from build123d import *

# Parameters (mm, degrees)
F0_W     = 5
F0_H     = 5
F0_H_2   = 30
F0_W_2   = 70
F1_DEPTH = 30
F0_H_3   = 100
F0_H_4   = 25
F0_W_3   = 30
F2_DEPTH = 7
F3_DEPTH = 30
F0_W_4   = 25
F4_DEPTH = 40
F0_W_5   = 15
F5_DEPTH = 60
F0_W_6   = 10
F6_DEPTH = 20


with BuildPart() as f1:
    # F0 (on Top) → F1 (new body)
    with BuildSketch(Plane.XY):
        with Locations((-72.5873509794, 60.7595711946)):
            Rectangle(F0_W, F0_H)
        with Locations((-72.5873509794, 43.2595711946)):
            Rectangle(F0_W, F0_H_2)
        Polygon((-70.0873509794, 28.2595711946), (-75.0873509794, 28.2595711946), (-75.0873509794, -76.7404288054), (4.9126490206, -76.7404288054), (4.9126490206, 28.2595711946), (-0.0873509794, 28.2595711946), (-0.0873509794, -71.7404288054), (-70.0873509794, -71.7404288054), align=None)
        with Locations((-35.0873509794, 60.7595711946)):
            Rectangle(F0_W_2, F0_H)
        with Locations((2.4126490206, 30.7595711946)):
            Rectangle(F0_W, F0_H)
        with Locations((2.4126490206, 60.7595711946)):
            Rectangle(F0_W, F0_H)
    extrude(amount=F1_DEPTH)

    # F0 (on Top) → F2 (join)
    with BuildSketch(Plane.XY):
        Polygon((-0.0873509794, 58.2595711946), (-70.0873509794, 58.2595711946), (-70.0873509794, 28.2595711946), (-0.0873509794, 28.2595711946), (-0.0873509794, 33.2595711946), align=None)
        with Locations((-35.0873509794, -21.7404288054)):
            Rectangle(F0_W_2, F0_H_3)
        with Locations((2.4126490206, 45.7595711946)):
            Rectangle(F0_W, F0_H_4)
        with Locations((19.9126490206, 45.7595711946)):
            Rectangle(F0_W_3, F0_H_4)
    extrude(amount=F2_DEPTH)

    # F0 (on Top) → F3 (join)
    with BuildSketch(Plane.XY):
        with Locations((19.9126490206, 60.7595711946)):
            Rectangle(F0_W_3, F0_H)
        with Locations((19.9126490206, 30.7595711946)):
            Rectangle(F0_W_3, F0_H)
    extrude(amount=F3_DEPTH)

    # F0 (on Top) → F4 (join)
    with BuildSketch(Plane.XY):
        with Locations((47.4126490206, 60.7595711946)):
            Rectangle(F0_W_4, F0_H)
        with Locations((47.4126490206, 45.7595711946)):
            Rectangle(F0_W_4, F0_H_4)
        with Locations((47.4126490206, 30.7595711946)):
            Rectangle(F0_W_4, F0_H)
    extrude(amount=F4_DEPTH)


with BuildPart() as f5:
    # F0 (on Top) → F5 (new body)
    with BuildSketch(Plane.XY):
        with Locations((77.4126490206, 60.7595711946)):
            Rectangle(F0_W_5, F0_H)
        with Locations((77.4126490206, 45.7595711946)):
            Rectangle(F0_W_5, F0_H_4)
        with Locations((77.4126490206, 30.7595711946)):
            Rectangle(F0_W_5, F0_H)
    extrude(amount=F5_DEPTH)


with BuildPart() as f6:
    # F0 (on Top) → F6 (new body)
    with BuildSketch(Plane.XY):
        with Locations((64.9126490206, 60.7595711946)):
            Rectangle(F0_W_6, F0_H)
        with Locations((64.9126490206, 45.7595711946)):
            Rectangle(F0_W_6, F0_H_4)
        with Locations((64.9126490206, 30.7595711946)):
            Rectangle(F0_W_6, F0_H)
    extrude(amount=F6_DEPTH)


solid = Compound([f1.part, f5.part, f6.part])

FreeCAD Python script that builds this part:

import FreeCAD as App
import Part
import Sketcher
from FreeCAD import Vector
Q = App.Units.Quantity

doc = App.newDocument("Part")
params = doc.addObject("Spreadsheet::Sheet", "Params")
for row, (alias, value) in enumerate([
    ("sketch1_width", "80 mm"),
    ("sketch1_width2", "5 mm"),
    ("sketch1_width3", "70 mm"),
    ("sketch1_height", "140 mm"),
    ("sketch1_height2", "110 mm"),
    ("pad1_length", "30 mm"),
    ("sketch2_width", "70 mm"),
    ("sketch2_width2", "35 mm"),
    ("sketch2_height", "130 mm"),
    ("pad2_length", "7 mm"),
    ("sketch3_width", "30 mm"),
    ("sketch3_height", "5 mm"),
    ("pad3_length", "30 mm"),
    ("sketch4_width", "25 mm"),
    ("sketch4_height", "35 mm"),
    ("pad4_length", "40 mm"),
    ("sketch5_width", "15 mm"),
    ("sketch5_height", "35 mm"),
    ("pad5_length", "60 mm"),
    ("sketch6_width", "10 mm"),
    ("sketch6_height", "35 mm"),
    ("pad6_length", "20 mm"),
], start=1):
    params.set(f"A{row}", alias)
    params.set(f"B{row}", "=" + value)
    params.setAlias(f"B{row}", alias)

body = doc.addObject("PartDesign::Body", "Body")

# Sketch on XY plane
sketch1 = body.newObject("Sketcher::SketchObject", "Sketch")
sketch1.AttachmentSupport = (doc.getObject("XY_Plane"), [""])
sketch1.MapMode = "FlatFace"
sketch1.addGeometry([
    Part.LineSegment(Vector(-75, 63, 0), Vector(-75, -77, 0)),  # 0
    Part.LineSegment(Vector(-75, -77, 0), Vector(5, -77, 0)),  # 1
    Part.LineSegment(Vector(5, -77, 0), Vector(5, 33, 0)),  # 2
    Part.LineSegment(Vector(5, 33, 0), Vector(0, 33, 0)),  # 3
    Part.LineSegment(Vector(0, 33, 0), Vector(0, -72, 0)),  # 4
    Part.LineSegment(Vector(0, -72, 0), Vector(-70, -72, 0)),  # 5
    Part.LineSegment(Vector(-70, -72, 0), Vector(-70, 58, 0)),  # 6
    Part.LineSegment(Vector(-70, 58, 0), Vector(5, 58, 0)),  # 7
    Part.LineSegment(Vector(5, 58, 0), Vector(5, 63, 0)),  # 8
    Part.LineSegment(Vector(5, 63, 0), Vector(-75, 63, 0)),  # 9
], False)
sketch1.addConstraint([
    Sketcher.Constraint("Coincident", 0, 2, 1, 1),
    Sketcher.Constraint("Coincident", 1, 2, 2, 1),
    Sketcher.Constraint("Coincident", 2, 2, 3, 1),
    Sketcher.Constraint("Coincident", 3, 2, 4, 1),
    Sketcher.Constraint("Coincident", 4, 2, 5, 1),
    Sketcher.Constraint("Coincident", 5, 2, 6, 1),
    Sketcher.Constraint("Coincident", 6, 2, 7, 1),
    Sketcher.Constraint("Coincident", 7, 2, 8, 1),
    Sketcher.Constraint("Coincident", 8, 2, 9, 1),
    Sketcher.Constraint("Coincident", 9, 2, 0, 1),
    Sketcher.Constraint("Vertical", 0),
    Sketcher.Constraint("Horizontal", 1),
    Sketcher.Constraint("Vertical", 2),
    Sketcher.Constraint("Horizontal", 3),
    Sketcher.Constraint("Vertical", 4),
    Sketcher.Constraint("Horizontal", 5),
    Sketcher.Constraint("Vertical", 6),
    Sketcher.Constraint("Horizontal", 7),
    Sketcher.Constraint("Vertical", 8),
    Sketcher.Constraint("Horizontal", 9),
    Sketcher.Constraint("Vertical", 2, 2, 7, 2),
    Sketcher.Constraint("Equal", 3, 8),
    Sketcher.Constraint("DistanceX", 1, 1, 1, 2, Q("80 mm")),
    Sketcher.Constraint("DistanceX", 3, 2, 3, 1, Q("5 mm")),
    Sketcher.Constraint("DistanceX", 5, 2, 5, 1, Q("70 mm")),
    Sketcher.Constraint("DistanceY", 0, 2, 0, 1, Q("140 mm")),
    Sketcher.Constraint("DistanceY", 2, 1, 2, 2, Q("110 mm")),
    Sketcher.Constraint("DistanceY", 4, 2, 4, 1, Q("105 mm")),
    Sketcher.Constraint("DistanceX", 0, 2, -1, 1, Q("75.087351 mm")),
    Sketcher.Constraint("DistanceY", 0, 2, -1, 1, Q("76.740429 mm")),
])
sketch1.setExpression("Constraints[22]", "Params.sketch1_width")
sketch1.setExpression("Constraints[23]", "Params.sketch1_width2")
sketch1.setExpression("Constraints[24]", "Params.sketch1_width3")
sketch1.setExpression("Constraints[25]", "Params.sketch1_height")
sketch1.setExpression("Constraints[26]", "Params.sketch1_height2")
pad1 = body.newObject("PartDesign::Pad", "Pad")
pad1.Profile = sketch1
pad1.setExpression("Length", "Params.pad1_length")

# Sketch on XY plane
sketch2 = body.newObject("Sketcher::SketchObject", "Sketch001")
sketch2.AttachmentSupport = (doc.getObject("XY_Plane"), [""])
sketch2.MapMode = "FlatFace"
sketch2.addGeometry([
    Part.LineSegment(Vector(-70, 58, 0), Vector(-70, -72, 0)),  # 0
    Part.LineSegment(Vector(-70, -72, 0), Vector(0, -72, 0)),  # 1
    Part.LineSegment(Vector(0, -72, 0), Vector(0, 33, 0)),  # 2
    Part.LineSegment(Vector(0, 33, 0), Vector(35, 33, 0)),  # 3
    Part.LineSegment(Vector(35, 33, 0), Vector(35, 58, 0)),  # 4
    Part.LineSegment(Vector(35, 58, 0), Vector(-70, 58, 0)),  # 5
], False)
sketch2.addConstraint([
    Sketcher.Constraint("Coincident", 0, 2, 1, 1),
    Sketcher.Constraint("Coincident", 1, 2, 2, 1),
    Sketcher.Constraint("Coincident", 2, 2, 3, 1),
    Sketcher.Constraint("Coincident", 3, 2, 4, 1),
    Sketcher.Constraint("Coincident", 4, 2, 5, 1),
    Sketcher.Constraint("Coincident", 5, 2, 0, 1),
    Sketcher.Constraint("Vertical", 0),
    Sketcher.Constraint("Horizontal", 1),
    Sketcher.Constraint("Vertical", 2),
    Sketcher.Constraint("Horizontal", 3),
    Sketcher.Constraint("Vertical", 4),
    Sketcher.Constraint("Horizontal", 5),
    Sketcher.Constraint("Equal", 5, 2),
    Sketcher.Constraint("DistanceX", 1, 1, 1, 2, Q("70 mm")),
    Sketcher.Constraint("DistanceX", 3, 1, 3, 2, Q("35 mm")),
    Sketcher.Constraint("DistanceY", 0, 2, 0, 1, Q("130 mm")),
    Sketcher.Constraint("DistanceX", 0, 2, -1, 1, Q("70.087351 mm")),
    Sketcher.Constraint("DistanceY", 0, 2, -1, 1, Q("71.740429 mm")),
])
sketch2.setExpression("Constraints[13]", "Params.sketch2_width")
sketch2.setExpression("Constraints[14]", "Params.sketch2_width2")
sketch2.setExpression("Constraints[15]", "Params.sketch2_height")
pad2 = body.newObject("PartDesign::Pad", "Pad001")
pad2.Profile = sketch2
pad2.setExpression("Length", "Params.pad2_length")

# Sketch on XY plane
sketch3 = body.newObject("Sketcher::SketchObject", "Sketch002")
sketch3.AttachmentSupport = (doc.getObject("XY_Plane"), [""])
sketch3.MapMode = "FlatFace"
sketch3.addGeometry([
    Part.LineSegment(Vector(5, 63, 0), Vector(5, 58, 0)),  # 0
    Part.LineSegment(Vector(5, 58, 0), Vector(35, 58, 0)),  # 1
    Part.LineSegment(Vector(35, 58, 0), Vector(35, 63, 0)),  # 2
    Part.LineSegment(Vector(35, 63, 0), Vector(5, 63, 0)),  # 3
    Part.LineSegment(Vector(5, 33, 0), Vector(5, 28, 0)),  # 4
    Part.LineSegment(Vector(5, 28, 0), Vector(35, 28, 0)),  # 5
    Part.LineSegment(Vector(35, 28, 0), Vector(35, 33, 0)),  # 6
    Part.LineSegment(Vector(35, 33, 0), Vector(5, 33, 0)),  # 7
], False)
sketch3.addConstraint([
    Sketcher.Constraint("Coincident", 0, 2, 1, 1),
    Sketcher.Constraint("Coincident", 1, 2, 2, 1),
    Sketcher.Constraint("Coincident", 2, 2, 3, 1),
    Sketcher.Constraint("Coincident", 3, 2, 0, 1),
    Sketcher.Constraint("Coincident", 4, 2, 5, 1),
    Sketcher.Constraint("Coincident", 5, 2, 6, 1),
    Sketcher.Constraint("Coincident", 6, 2, 7, 1),
    Sketcher.Constraint("Coincident", 7, 2, 4, 1),
    Sketcher.Constraint("Vertical", 0),
    Sketcher.Constraint("Horizontal", 1),
    Sketcher.Constraint("Vertical", 2),
    Sketcher.Constraint("Horizontal", 3),
    Sketcher.Constraint("Vertical", 4),
    Sketcher.Constraint("Horizontal", 5),
    Sketcher.Constraint("Vertical", 6),
    Sketcher.Constraint("Horizontal", 7),
    Sketcher.Constraint("Vertical", 3, 2, 4, 2),
    Sketcher.Constraint("Vertical", 2, 2, 5, 2),
    Sketcher.Constraint("Equal", 2, 4),
    Sketcher.Constraint("DistanceX", 1, 1, 1, 2, Q("30 mm")),
    Sketcher.Constraint("DistanceY", 0, 2, 0, 1, Q("5 mm")),
    Sketcher.Constraint("DistanceY", 4, 2, 0, 2, Q("30 mm")),
    Sketcher.Constraint("DistanceX", -1, 1, 0, 2, Q("4.912649 mm")),
    Sketcher.Constraint("DistanceY", -1, 1, 0, 2, Q("58.259571 mm")),
])
sketch3.setExpression("Constraints[19]", "Params.sketch3_width")
sketch3.setExpression("Constraints[20]", "Params.sketch3_height")
pad3 = body.newObject("PartDesign::Pad", "Pad002")
pad3.Profile = sketch3
pad3.setExpression("Length", "Params.pad3_length")

# Sketch on XY plane
sketch4 = body.newObject("Sketcher::SketchObject", "Sketch003")
sketch4.AttachmentSupport = (doc.getObject("XY_Plane"), [""])
sketch4.MapMode = "FlatFace"
sketch4.addGeometry([
    Part.LineSegment(Vector(35, 63, 0), Vector(35, 28, 0)),
    Part.LineSegment(Vector(35, 28, 0), Vector(60, 28, 0)),
    Part.LineSegment(Vector(60, 28, 0), Vector(60, 63, 0)),
    Part.LineSegment(Vector(60, 63, 0), Vector(35, 63, 0)),
], False)
sketch4.addConstraint([
    Sketcher.Constraint("Coincident", 0, 2, 1, 1),
    Sketcher.Constraint("Coincident", 1, 2, 2, 1),
    Sketcher.Constraint("Coincident", 2, 2, 3, 1),
    Sketcher.Constraint("Coincident", 3, 2, 0, 1),
    Sketcher.Constraint("Vertical", 0),
    Sketcher.Constraint("Horizontal", 1),
    Sketcher.Constraint("Vertical", 2),
    Sketcher.Constraint("Horizontal", 3),
    Sketcher.Constraint("DistanceX", 1, 1, 1, 2, Q("25 mm")),
    Sketcher.Constraint("DistanceY", 0, 2, 0, 1, Q("35 mm")),
    Sketcher.Constraint("DistanceX", -1, 1, 0, 2, Q("34.912649 mm")),
    Sketcher.Constraint("DistanceY", -1, 1, 0, 2, Q("28.259571 mm")),
])
sketch4.setExpression("Constraints[8]", "Params.sketch4_width")
sketch4.setExpression("Constraints[9]", "Params.sketch4_height")
pad4 = body.newObject("PartDesign::Pad", "Pad003")
pad4.Profile = sketch4
pad4.setExpression("Length", "Params.pad4_length")
body2 = doc.addObject("PartDesign::Body", "Body001")

# Sketch on XY plane
sketch5 = body2.newObject("Sketcher::SketchObject", "Sketch004")
sketch5.AttachmentSupport = (doc.getObject("XY_Plane001"), [""])
sketch5.MapMode = "FlatFace"
sketch5.addGeometry([
    Part.LineSegment(Vector(70, 63, 0), Vector(70, 28, 0)),
    Part.LineSegment(Vector(70, 28, 0), Vector(85, 28, 0)),
    Part.LineSegment(Vector(85, 28, 0), Vector(85, 63, 0)),
    Part.LineSegment(Vector(85, 63, 0), Vector(70, 63, 0)),
], False)
sketch5.addConstraint([
    Sketcher.Constraint("Coincident", 0, 2, 1, 1),
    Sketcher.Constraint("Coincident", 1, 2, 2, 1),
    Sketcher.Constraint("Coincident", 2, 2, 3, 1),
    Sketcher.Constraint("Coincident", 3, 2, 0, 1),
    Sketcher.Constraint("Vertical", 0),
    Sketcher.Constraint("Horizontal", 1),
    Sketcher.Constraint("Vertical", 2),
    Sketcher.Constraint("Horizontal", 3),
    Sketcher.Constraint("DistanceX", 1, 1, 1, 2, Q("15 mm")),
    Sketcher.Constraint("DistanceY", 0, 2, 0, 1, Q("35 mm")),
    Sketcher.Constraint("DistanceX", -1, 1, 0, 2, Q("69.912649 mm")),
    Sketcher.Constraint("DistanceY", -1, 1, 0, 2, Q("28.259571 mm")),
])
sketch5.setExpression("Constraints[8]", "Params.sketch5_width")
sketch5.setExpression("Constraints[9]", "Params.sketch5_height")
pad5 = body2.newObject("PartDesign::Pad", "Pad004")
pad5.Profile = sketch5
pad5.setExpression("Length", "Params.pad5_length")
body3 = doc.addObject("PartDesign::Body", "Body002")

# Sketch on XY plane
sketch6 = body3.newObject("Sketcher::SketchObject", "Sketch005")
sketch6.AttachmentSupport = (doc.getObject("XY_Plane002"), [""])
sketch6.MapMode = "FlatFace"
sketch6.addGeometry([
    Part.LineSegment(Vector(60, 63, 0), Vector(60, 28, 0)),
    Part.LineSegment(Vector(60, 28, 0), Vector(70, 28, 0)),
    Part.LineSegment(Vector(70, 28, 0), Vector(70, 63, 0)),
    Part.LineSegment(Vector(70, 63, 0), Vector(60, 63, 0)),
], False)
sketch6.addConstraint([
    Sketcher.Constraint("Coincident", 0, 2, 1, 1),
    Sketcher.Constraint("Coincident", 1, 2, 2, 1),
    Sketcher.Constraint("Coincident", 2, 2, 3, 1),
    Sketcher.Constraint("Coincident", 3, 2, 0, 1),
    Sketcher.Constraint("Vertical", 0),
    Sketcher.Constraint("Horizontal", 1),
    Sketcher.Constraint("Vertical", 2),
    Sketcher.Constraint("Horizontal", 3),
    Sketcher.Constraint("DistanceX", 1, 1, 1, 2, Q("10 mm")),
    Sketcher.Constraint("DistanceY", 0, 2, 0, 1, Q("35 mm")),
    Sketcher.Constraint("DistanceX", -1, 1, 0, 2, Q("59.912649 mm")),
    Sketcher.Constraint("DistanceY", -1, 1, 0, 2, Q("28.259571 mm")),
])
sketch6.setExpression("Constraints[8]", "Params.sketch6_width")
sketch6.setExpression("Constraints[9]", "Params.sketch6_height")
pad6 = body3.newObject("PartDesign::Pad", "Pad005")
pad6.Profile = sketch6
pad6.setExpression("Length", "Params.pad6_length")

doc.recompute()
